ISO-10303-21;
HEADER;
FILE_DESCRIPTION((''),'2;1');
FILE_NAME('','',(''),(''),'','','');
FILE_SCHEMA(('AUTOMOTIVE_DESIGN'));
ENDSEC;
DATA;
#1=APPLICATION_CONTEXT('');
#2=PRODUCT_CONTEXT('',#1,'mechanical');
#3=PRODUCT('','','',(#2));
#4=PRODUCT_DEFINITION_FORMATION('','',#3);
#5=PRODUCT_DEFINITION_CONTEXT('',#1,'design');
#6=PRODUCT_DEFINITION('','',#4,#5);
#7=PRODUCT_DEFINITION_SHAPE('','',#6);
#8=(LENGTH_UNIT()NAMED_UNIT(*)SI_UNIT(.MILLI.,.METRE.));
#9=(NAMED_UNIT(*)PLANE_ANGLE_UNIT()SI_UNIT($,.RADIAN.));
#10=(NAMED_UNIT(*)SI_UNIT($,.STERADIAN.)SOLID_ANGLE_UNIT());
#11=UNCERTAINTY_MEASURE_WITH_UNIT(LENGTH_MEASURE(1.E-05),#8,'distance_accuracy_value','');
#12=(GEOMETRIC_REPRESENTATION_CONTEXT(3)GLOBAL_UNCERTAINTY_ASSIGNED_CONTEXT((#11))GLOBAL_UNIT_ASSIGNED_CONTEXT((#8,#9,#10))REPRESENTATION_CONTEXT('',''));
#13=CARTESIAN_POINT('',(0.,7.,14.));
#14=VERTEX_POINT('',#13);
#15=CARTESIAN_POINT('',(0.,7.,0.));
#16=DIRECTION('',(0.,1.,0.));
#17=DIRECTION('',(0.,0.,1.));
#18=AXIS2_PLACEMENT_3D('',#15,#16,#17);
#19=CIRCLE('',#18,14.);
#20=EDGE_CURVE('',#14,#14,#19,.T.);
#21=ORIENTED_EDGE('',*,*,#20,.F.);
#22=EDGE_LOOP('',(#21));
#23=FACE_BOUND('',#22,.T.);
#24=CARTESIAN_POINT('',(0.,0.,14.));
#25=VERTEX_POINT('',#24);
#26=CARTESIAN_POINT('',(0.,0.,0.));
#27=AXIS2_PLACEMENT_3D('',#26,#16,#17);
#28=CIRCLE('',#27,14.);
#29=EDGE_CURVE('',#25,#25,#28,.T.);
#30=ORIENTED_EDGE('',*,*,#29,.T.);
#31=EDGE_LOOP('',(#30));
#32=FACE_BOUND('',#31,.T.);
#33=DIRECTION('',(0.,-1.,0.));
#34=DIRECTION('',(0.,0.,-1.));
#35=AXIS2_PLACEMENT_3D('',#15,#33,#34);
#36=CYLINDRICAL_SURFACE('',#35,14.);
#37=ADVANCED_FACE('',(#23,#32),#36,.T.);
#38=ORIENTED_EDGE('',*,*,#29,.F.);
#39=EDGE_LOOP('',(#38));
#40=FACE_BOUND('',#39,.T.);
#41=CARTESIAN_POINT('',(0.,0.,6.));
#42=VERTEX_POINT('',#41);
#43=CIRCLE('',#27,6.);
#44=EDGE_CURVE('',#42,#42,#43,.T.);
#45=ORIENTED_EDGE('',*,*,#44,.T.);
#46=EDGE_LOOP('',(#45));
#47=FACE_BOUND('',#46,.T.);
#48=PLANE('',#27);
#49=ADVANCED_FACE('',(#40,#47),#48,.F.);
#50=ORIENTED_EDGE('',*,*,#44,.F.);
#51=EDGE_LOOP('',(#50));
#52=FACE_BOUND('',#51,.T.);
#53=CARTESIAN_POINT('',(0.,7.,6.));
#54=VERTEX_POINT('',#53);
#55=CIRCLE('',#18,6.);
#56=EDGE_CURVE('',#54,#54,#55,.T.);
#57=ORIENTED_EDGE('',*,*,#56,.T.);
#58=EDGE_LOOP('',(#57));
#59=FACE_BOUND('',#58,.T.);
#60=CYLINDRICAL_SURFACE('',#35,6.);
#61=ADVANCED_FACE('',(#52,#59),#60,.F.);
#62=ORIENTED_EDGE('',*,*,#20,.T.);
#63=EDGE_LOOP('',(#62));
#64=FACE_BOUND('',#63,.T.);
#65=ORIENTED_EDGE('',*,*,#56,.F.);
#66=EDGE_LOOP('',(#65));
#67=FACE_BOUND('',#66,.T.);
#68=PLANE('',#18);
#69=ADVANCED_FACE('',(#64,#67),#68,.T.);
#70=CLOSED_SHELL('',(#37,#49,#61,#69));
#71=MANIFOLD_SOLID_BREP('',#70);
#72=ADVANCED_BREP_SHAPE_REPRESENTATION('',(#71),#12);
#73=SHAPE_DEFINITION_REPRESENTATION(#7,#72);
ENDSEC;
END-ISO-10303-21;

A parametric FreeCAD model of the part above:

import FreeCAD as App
import Part
import Sketcher
Q = App.Units.Quantity

doc = App.newDocument("Part")
body = doc.addObject("PartDesign::Body", "Body")

# Sketch on XZ plane
sketch1 = doc.addObject("Sketcher::SketchObject", "Sketch")
body.addObject(sketch1)
sketch1.AttachmentSupport = (doc.XZ_Plane, [""])
sketch1.MapMode = "FlatFace"
sketch1.addGeometry([
    Part.Circle(App.Vector(0, 0, 0), App.Vector(0, 0, 1), 14),
    Part.Circle(App.Vector(0, 0, 0), App.Vector(0, 0, 1), 6),
], False)
sketch1.addConstraint([
    Sketcher.Constraint("Coincident", 0, 3, -1, 1),
    Sketcher.Constraint("Coincident", 1, 3, -1, 1),
    Sketcher.Constraint("Diameter", 0, Q("28 mm")),
    Sketcher.Constraint("Diameter", 1, Q("12 mm")),
])
pad1 = doc.addObject("PartDesign::Pad", "Pad")
body.addObject(pad1)
pad1.Profile = sketch1
pad1.Length = 7
pad1.Reversed = True

doc.recompute()
